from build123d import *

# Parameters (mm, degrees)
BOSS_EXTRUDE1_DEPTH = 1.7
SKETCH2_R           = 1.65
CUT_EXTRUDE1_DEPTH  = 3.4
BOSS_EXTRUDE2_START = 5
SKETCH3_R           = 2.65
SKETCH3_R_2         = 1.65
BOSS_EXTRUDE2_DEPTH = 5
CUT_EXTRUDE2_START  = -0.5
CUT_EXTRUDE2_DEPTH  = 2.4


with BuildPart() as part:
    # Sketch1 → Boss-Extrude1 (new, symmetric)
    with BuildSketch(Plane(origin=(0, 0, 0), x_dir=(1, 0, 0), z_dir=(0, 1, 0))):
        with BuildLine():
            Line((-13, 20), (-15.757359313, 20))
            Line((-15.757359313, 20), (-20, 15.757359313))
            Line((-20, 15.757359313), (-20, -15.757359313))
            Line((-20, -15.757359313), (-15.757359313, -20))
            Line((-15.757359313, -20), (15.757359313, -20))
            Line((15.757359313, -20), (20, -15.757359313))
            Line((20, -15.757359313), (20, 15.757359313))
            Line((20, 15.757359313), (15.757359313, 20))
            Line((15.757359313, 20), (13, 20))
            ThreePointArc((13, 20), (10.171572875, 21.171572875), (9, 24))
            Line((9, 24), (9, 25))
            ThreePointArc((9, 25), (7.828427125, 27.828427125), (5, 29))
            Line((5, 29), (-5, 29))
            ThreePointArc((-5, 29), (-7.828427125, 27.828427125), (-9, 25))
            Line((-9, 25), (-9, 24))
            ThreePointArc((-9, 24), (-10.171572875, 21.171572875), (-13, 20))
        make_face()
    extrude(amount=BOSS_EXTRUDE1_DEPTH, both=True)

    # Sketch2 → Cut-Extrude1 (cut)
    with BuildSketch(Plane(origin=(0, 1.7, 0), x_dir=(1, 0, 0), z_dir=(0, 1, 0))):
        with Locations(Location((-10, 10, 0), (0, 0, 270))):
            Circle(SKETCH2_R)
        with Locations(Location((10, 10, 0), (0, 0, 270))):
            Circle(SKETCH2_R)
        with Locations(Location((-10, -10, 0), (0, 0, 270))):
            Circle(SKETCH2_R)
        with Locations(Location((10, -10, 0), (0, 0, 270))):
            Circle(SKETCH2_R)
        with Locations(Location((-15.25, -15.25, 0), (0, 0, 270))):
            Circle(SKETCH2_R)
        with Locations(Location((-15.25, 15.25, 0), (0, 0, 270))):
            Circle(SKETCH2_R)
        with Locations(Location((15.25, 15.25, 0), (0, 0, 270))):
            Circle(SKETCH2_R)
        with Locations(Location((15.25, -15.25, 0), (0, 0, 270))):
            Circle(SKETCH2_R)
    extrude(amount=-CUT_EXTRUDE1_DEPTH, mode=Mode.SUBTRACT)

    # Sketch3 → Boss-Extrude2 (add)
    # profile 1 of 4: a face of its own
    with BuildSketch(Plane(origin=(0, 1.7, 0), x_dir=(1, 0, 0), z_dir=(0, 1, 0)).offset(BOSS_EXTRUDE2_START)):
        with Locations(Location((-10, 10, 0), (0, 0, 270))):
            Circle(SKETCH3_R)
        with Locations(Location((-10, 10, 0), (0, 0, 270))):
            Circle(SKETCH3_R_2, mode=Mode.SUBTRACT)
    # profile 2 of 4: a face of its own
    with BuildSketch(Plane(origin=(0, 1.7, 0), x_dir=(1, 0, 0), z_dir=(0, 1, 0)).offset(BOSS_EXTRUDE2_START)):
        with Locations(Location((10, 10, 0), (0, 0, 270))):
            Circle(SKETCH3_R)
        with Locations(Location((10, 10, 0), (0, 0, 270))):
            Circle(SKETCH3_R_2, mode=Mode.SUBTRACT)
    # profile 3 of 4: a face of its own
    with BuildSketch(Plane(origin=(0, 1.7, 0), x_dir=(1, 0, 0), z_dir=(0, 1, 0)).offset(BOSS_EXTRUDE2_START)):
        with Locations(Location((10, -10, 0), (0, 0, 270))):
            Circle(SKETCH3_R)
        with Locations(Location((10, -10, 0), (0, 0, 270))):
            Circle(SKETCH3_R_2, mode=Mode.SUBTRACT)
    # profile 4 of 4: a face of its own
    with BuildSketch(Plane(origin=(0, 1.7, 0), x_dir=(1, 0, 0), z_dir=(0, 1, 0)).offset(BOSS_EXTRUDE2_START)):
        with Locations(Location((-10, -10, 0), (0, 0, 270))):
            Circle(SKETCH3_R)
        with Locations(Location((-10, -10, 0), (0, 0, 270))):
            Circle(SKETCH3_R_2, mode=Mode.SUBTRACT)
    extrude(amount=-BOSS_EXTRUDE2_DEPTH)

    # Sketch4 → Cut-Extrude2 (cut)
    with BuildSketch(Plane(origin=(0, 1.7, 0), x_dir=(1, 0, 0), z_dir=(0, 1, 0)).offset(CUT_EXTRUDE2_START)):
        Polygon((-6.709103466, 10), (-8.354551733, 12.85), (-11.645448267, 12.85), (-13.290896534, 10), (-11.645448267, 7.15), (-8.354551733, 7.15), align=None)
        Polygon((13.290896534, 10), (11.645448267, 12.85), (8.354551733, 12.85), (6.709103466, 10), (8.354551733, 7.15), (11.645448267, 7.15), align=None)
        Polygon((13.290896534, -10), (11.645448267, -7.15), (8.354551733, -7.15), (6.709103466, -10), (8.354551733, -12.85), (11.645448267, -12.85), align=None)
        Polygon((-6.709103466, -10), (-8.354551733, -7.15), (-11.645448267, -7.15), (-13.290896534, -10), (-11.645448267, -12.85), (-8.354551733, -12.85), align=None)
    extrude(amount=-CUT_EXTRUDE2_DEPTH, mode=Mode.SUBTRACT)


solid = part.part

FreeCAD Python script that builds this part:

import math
import FreeCAD as App
import Part
import Sketcher
Q = App.Units.Quantity


def add_polygon(sketch, points):
    """Adds a closed chain of lines whose ends are joined by coincident constraints."""
    first, n = sketch.GeometryCount, len(points)
    for a, b in zip(points, points[1:] + points[:1]):
        sketch.addGeometry(Part.LineSegment(App.Vector(*a, 0), App.Vector(*b, 0)), False)
    for i in range(n):
        sketch.addConstraint(Sketcher.Constraint("Coincident", first + i, 2, first + (i + 1) % n, 1))

doc = App.newDocument("Part")
body = doc.addObject("PartDesign::Body", "Body")

# Sketch on XZ plane
sketch1 = body.newObject("Sketcher::SketchObject", "Sketch")
sketch1.AttachmentSupport = (doc.getObject("XZ_Plane"), [""])
sketch1.MapMode = "FlatFace"
sketch1.addGeometry(Part.LineSegment(App.Vector(-13, -20, 0), App.Vector(-15.8, -20, 0)), False)
sketch1.addGeometry(Part.LineSegment(App.Vector(-15.8, -20, 0), App.Vector(-20, -15.8, 0)), False)
sketch1.addGeometry(Part.LineSegment(App.Vector(-20, -15.8, 0), App.Vector(-20, 15.8, 0)), False)
sketch1.addGeometry(Part.LineSegment(App.Vector(-20, 15.8, 0), App.Vector(-15.8, 20, 0)), False)
sketch1.addGeometry(Part.LineSegment(App.Vector(-15.8, 20, 0), App.Vector(15.8, 20, 0)), False)
sketch1.addGeometry(Part.LineSegment(App.Vector(15.8, 20, 0), App.Vector(20, 15.8, 0)), False)
sketch1.addGeometry(Part.LineSegment(App.Vector(20, 15.8, 0), App.Vector(20, -15.8, 0)), False)
sketch1.addGeometry(Part.LineSegment(App.Vector(20, -15.8, 0), App.Vector(15.8, -20, 0)), False)
sketch1.addGeometry(Part.LineSegment(App.Vector(15.8, -20, 0), App.Vector(13, -20, 0)), False)
sketch1.addGeometry(Part.ArcOfCircle(Part.Circle(App.Vector(13, -24, 0), App.Vector(0, 0, 1), 4), math.radians(90), math.radians(180)), False)
sketch1.addGeometry(Part.LineSegment(App.Vector(9, -24, 0), App.Vector(9, -25, 0)), False)
sketch1.addGeometry(Part.ArcOfCircle(Part.Circle(App.Vector(5, -25, 0), App.Vector(0, 0, 1), 4), math.radians(-90), math.radians(0)), False)
sketch1.addGeometry(Part.LineSegment(App.Vector(5, -29, 0), App.Vector(-5, -29, 0)), False)
sketch1.addGeometry(Part.ArcOfCircle(Part.Circle(App.Vector(-5, -25, 0), App.Vector(0, 0, 1), 4), math.radians(180), math.radians(270)), False)
sketch1.addGeometry(Part.LineSegment(App.Vector(-9, -25, 0), App.Vector(-9, -24, 0)), False)
sketch1.addGeometry(Part.ArcOfCircle(Part.Circle(App.Vector(-13, -24, 0), App.Vector(0, 0, 1), 4), math.radians(0), math.radians(90)), False)
sketch1.addConstraint(Sketcher.Constraint("Coincident", 0, 2, 1, 1))
sketch1.addConstraint(Sketcher.Constraint("Coincident", 1, 2, 2, 1))
sketch1.addConstraint(Sketcher.Constraint("Coincident", 2, 2, 3, 1))
sketch1.addConstraint(Sketcher.Constraint("Coincident", 3, 2, 4, 1))
sketch1.addConstraint(Sketcher.Constraint("Coincident", 4, 2, 5, 1))
sketch1.addConstraint(Sketcher.Constraint("Coincident", 5, 2, 6, 1))
sketch1.addConstraint(Sketcher.Constraint("Coincident", 6, 2, 7, 1))
sketch1.addConstraint(Sketcher.Constraint("Coincident", 7, 2, 8, 1))
sketch1.addConstraint(Sketcher.Constraint("Tangent", 8, 2, 9, 1))
sketch1.addConstraint(Sketcher.Constraint("Tangent", 9, 2, 10, 1))
sketch1.addConstraint(Sketcher.Constraint("Tangent", 10, 2, 11, 2))
sketch1.addConstraint(Sketcher.Constraint("Tangent", 11, 1, 12, 1))
sketch1.addConstraint(Sketcher.Constraint("Tangent", 12, 2, 13, 2))
sketch1.addConstraint(Sketcher.Constraint("Tangent", 13, 1, 14, 1))
sketch1.addConstraint(Sketcher.Constraint("Tangent", 14, 2, 15, 1))
sketch1.addConstraint(Sketcher.Constraint("Tangent", 15, 2, 0, 1))
sketch1.addConstraint(Sketcher.Constraint("Horizontal", 0))
sketch1.addConstraint(Sketcher.Constraint("Vertical", 2))
sketch1.addConstraint(Sketcher.Constraint("Horizontal", 4))
sketch1.addConstraint(Sketcher.Constraint("Vertical", 6))
sketch1.addConstraint(Sketcher.Constraint("Horizontal", 8))
sketch1.addConstraint(Sketcher.Constraint("Vertical", 10))
sketch1.addConstraint(Sketcher.Constraint("Horizontal", 12))
sketch1.addConstraint(Sketcher.Constraint("Vertical", 14))
sketch1.addConstraint(Sketcher.Constraint("Equal", 9, 11))
sketch1.addConstraint(Sketcher.Constraint("Equal", 11, 13))
sketch1.addConstraint(Sketcher.Constraint("Equal", 13, 15))
sketch1.addConstraint(Sketcher.Constraint("Symmetric", 0, 2, 4, 2, -1, 1))
sketch1.addConstraint(Sketcher.Constraint("Symmetric", 1, 2, 5, 2, -1, 1))
sketch1.addConstraint(Sketcher.Constraint("Symmetric", 3, 2, 7, 2, -1, 1))
sketch1.addConstraint(Sketcher.Constraint("Perpendicular", 1, 3))
sketch1.addConstraint(Sketcher.Constraint("Perpendicular", 5, 7))
sketch1.addConstraint(Sketcher.Constraint("Horizontal", 2, 2, 5, 2))
sketch1.addConstraint(Sketcher.Constraint("Vertical", 0, 2, 3, 2))
sketch1.addConstraint(Sketcher.Constraint("Equal", 0, 8))
sketch1.addConstraint(Sketcher.Constraint("Equal", 4, 2))
sketch1.addConstraint(Sketcher.Constraint("Radius", 9, 4.0))
sketch1.addConstraint(Sketcher.Constraint("DistanceX", 12, 2, 12, 1, 10.0))
sketch1.addConstraint(Sketcher.Constraint("DistanceY", 10, 2, 10, 1, 1.0))
sketch1.addConstraint(Sketcher.Constraint("Distance", 1, 6.0))
sketch1.addConstraint(Sketcher.Constraint("DistanceY", 9, 3, -1, 1, 24.0))
pad1 = body.newObject("PartDesign::Pad", "Pad")
pad1.Profile = sketch1
pad1.Length = 3.4
pad1.Midplane = True

# Sketch on XZ plane
sketch2 = body.newObject("Sketcher::SketchObject", "Sketch001")
sketch2.AttachmentSupport = (doc.getObject("XZ_Plane"), [""])
sketch2.MapMode = "FlatFace"
sketch2.AttachmentOffset = App.Placement(App.Vector(0, 0, -1.7), App.Rotation())
sketch2.addGeometry(Part.Circle(App.Vector(-10, -10, 0), App.Vector(0, 0, 1), 1.6), False)
sketch2.addGeometry(Part.Circle(App.Vector(10, -10, 0), App.Vector(0, 0, 1), 1.6), False)
sketch2.addGeometry(Part.Circle(App.Vector(-10, 10, 0), App.Vector(0, 0, 1), 1.6), False)
sketch2.addGeometry(Part.Circle(App.Vector(10, 10, 0), App.Vector(0, 0, 1), 1.6), False)
sketch2.addGeometry(Part.Circle(App.Vector(-15.2, 15.2, 0), App.Vector(0, 0, 1), 1.6), False)
sketch2.addGeometry(Part.Circle(App.Vector(-15.2, -15.2, 0), App.Vector(0, 0, 1), 1.6), False)
sketch2.addGeometry(Part.Circle(App.Vector(15.2, -15.2, 0), App.Vector(0, 0, 1), 1.6), False)
sketch2.addGeometry(Part.Circle(App.Vector(15.2, 15.2, 0), App.Vector(0, 0, 1), 1.6), False)
sketch2.addConstraint(Sketcher.Constraint("Equal", 0, 1))
sketch2.addConstraint(Sketcher.Constraint("Equal", 1, 2))
sketch2.addConstraint(Sketcher.Constraint("Equal", 2, 3))
sketch2.addConstraint(Sketcher.Constraint("Equal", 3, 4))
sketch2.addConstraint(Sketcher.Constraint("Equal", 4, 5))
sketch2.addConstraint(Sketcher.Constraint("Equal", 5, 6))
sketch2.addConstraint(Sketcher.Constraint("Equal", 6, 7))
sketch2.addConstraint(Sketcher.Constraint("Symmetric", 1, 3, 2, 3, -1, 1))
sketch2.addConstraint(Sketcher.Constraint("Symmetric", 0, 3, 3, 3, -1, 1))
sketch2.addConstraint(Sketcher.Constraint("Symmetric", 4, 3, 6, 3, -1, 1))
sketch2.addConstraint(Sketcher.Constraint("Symmetric", 5, 3, 7, 3, -1, 1))
sketch2.addConstraint(Sketcher.Constraint("Symmetric", 0, 3, 1, 3, -2))
sketch2.addConstraint(Sketcher.Constraint("Symmetric", 5, 3, 6, 3, -2))
sketch2.addConstraint(Sketcher.Constraint("Diameter", 0, 3.3))
sketch2.addConstraint(Sketcher.Constraint("DistanceX", 0, 3, -1, 1, 10.0))
sketch2.addConstraint(Sketcher.Constraint("DistanceY", 0, 3, -1, 1, 10.0))
sketch2.addConstraint(Sketcher.Constraint("DistanceY", 5, 3, 4, 3, 30.5))
sketch2.addConstraint(Sketcher.Constraint("DistanceX", 5, 3, 6, 3, 30.5))
pocket1 = body.newObject("PartDesign::Pocket", "Pocket")
pocket1.Profile = sketch2
pocket1.Length = 3.4
pocket1.Reversed = True

# Sketch on XZ plane
sketch3 = body.newObject("Sketcher::SketchObject", "Sketch002")
sketch3.AttachmentSupport = (doc.getObject("XZ_Plane"), [""])
sketch3.MapMode = "FlatFace"
sketch3.AttachmentOffset = App.Placement(App.Vector(0, 0, -6.7), App.Rotation())
sketch3.addGeometry(Part.Circle(App.Vector(-10, -10, 0), App.Vector(0, 0, 1), 2.6), False)
sketch3.addGeometry(Part.Circle(App.Vector(-10, -10, 0), App.Vector(0, 0, 1), 1.6), False)
sketch3.addGeometry(Part.Circle(App.Vector(10, -10, 0), App.Vector(0, 0, 1), 2.6), False)
sketch3.addGeometry(Part.Circle(App.Vector(10, -10, 0), App.Vector(0, 0, 1), 1.6), False)
sketch3.addGeometry(Part.Circle(App.Vector(10, 10, 0), App.Vector(0, 0, 1), 2.6), False)
sketch3.addGeometry(Part.Circle(App.Vector(10, 10, 0), App.Vector(0, 0, 1), 1.6), False)
sketch3.addGeometry(Part.Circle(App.Vector(-10, 10, 0), App.Vector(0, 0, 1), 2.6), False)
sketch3.addGeometry(Part.Circle(App.Vector(-10, 10, 0), App.Vector(0, 0, 1), 1.6), False)
sketch3.addConstraint(Sketcher.Constraint("Coincident", 1, 3, 0, 3))
sketch3.addConstraint(Sketcher.Constraint("Coincident", 3, 3, 2, 3))
sketch3.addConstraint(Sketcher.Constraint("Coincident", 5, 3, 4, 3))
sketch3.addConstraint(Sketcher.Constraint("Coincident", 7, 3, 6, 3))
sketch3.addConstraint(Sketcher.Constraint("Equal", 0, 2))
sketch3.addConstraint(Sketcher.Constraint("Equal", 1, 3))
sketch3.addConstraint(Sketcher.Constraint("Equal", 2, 4))
sketch3.addConstraint(Sketcher.Constraint("Equal", 3, 5))
sketch3.addConstraint(Sketcher.Constraint("Equal", 4, 6))
sketch3.addConstraint(Sketcher.Constraint("Equal", 5, 7))
sketch3.addConstraint(Sketcher.Constraint("Symmetric", 0, 3, 4, 3, -1, 1))
sketch3.addConstraint(Sketcher.Constraint("Symmetric", 2, 3, 6, 3, -1, 1))
sketch3.addConstraint(Sketcher.Constraint("Symmetric", 0, 3, 2, 3, -2))
sketch3.addConstraint(Sketcher.Constraint("Diameter", 0, 5.3))
sketch3.addConstraint(Sketcher.Constraint("Diameter", 1, 3.3))
sketch3.addConstraint(Sketcher.Constraint("DistanceX", 0, 3, -1, 1, 10.0))
sketch3.addConstraint(Sketcher.Constraint("DistanceY", 0, 3, -1, 1, 10.0))
pad2 = body.newObject("PartDesign::Pad", "Pad001")
pad2.Profile = sketch3
pad2.Length = 5

# Sketch on XZ plane
sketch4 = body.newObject("Sketcher::SketchObject", "Sketch003")
sketch4.AttachmentSupport = (doc.getObject("XZ_Plane"), [""])
sketch4.MapMode = "FlatFace"
sketch4.AttachmentOffset = App.Placement(App.Vector(0, 0, -1.2), App.Rotation())
add_polygon(sketch4, [(-6.7, -10), (-8.4, -12.8), (-11.6, -12.8), (-13.3, -10), (-11.6, -7.2), (-8.4, -7.2)])  # lines 0-5
add_polygon(sketch4, [(13.3, -10), (11.6, -12.8), (8.4, -12.8), (6.7, -10), (8.4, -7.2), (11.6, -7.2)])  # lines 6-11
add_polygon(sketch4, [(13.3, 10), (11.6, 7.2), (8.4, 7.2), (6.7, 10), (8.4, 12.8), (11.6, 12.8)])  # lines 12-17
add_polygon(sketch4, [(-6.7, 10), (-8.4, 7.2), (-11.6, 7.2), (-13.3, 10), (-11.6, 12.8), (-8.4, 12.8)])  # lines 18-23
sketch4.addConstraint(Sketcher.Constraint("Horizontal", 1))
sketch4.addConstraint(Sketcher.Constraint("Horizontal", 4))
sketch4.addConstraint(Sketcher.Constraint("Horizontal", 7))
sketch4.addConstraint(Sketcher.Constraint("Horizontal", 10))
sketch4.addConstraint(Sketcher.Constraint("Horizontal", 13))
sketch4.addConstraint(Sketcher.Constraint("Horizontal", 16))
sketch4.addConstraint(Sketcher.Constraint("Horizontal", 19))
sketch4.addConstraint(Sketcher.Constraint("Horizontal", 22))
sketch4.addConstraint(Sketcher.Constraint("Symmetric", 3, 2, 12, 2, -1, 1))
sketch4.addConstraint(Sketcher.Constraint("Symmetric", 5, 2, 14, 2, -1, 1))
sketch4.addConstraint(Sketcher.Constraint("Symmetric", 0, 2, 15, 2, -1, 1))
sketch4.addConstraint(Sketcher.Constraint("Symmetric", 2, 2, 17, 2, -1, 1))
sketch4.addConstraint(Sketcher.Constraint("Symmetric", 9, 2, 18, 2, -1, 1))
sketch4.addConstraint(Sketcher.Constraint("Symmetric", 11, 2, 20, 2, -1, 1))
sketch4.addConstraint(Sketcher.Constraint("Symmetric", 6, 2, 21, 2, -1, 1))
sketch4.addConstraint(Sketcher.Constraint("Symmetric", 8, 2, 23, 2, -1, 1))
sketch4.addConstraint(Sketcher.Constraint("Symmetric", 1, 2, 6, 2, -2))
sketch4.addConstraint(Sketcher.Constraint("Symmetric", 5, 2, 8, 2, -2))
sketch4.addConstraint(Sketcher.Constraint("Symmetric", 4, 2, 9, 2, -2))
sketch4.addConstraint(Sketcher.Constraint("Symmetric", 2, 2, 11, 2, -2))
sketch4.addConstraint(Sketcher.Constraint("Parallel", 0, 3))
sketch4.addConstraint(Sketcher.Constraint("Parallel", 2, 5))
sketch4.addConstraint(Sketcher.Constraint("Parallel", 3, 6))
sketch4.addConstraint(Sketcher.Constraint("Parallel", 5, 8))
sketch4.addConstraint(Sketcher.Constraint("Parallel", 8, 11))
sketch4.addConstraint(Sketcher.Constraint("Parallel", 11, 14))
sketch4.addConstraint(Sketcher.Constraint("Parallel", 14, 17))
sketch4.addConstraint(Sketcher.Constraint("Parallel", 17, 20))
sketch4.addConstraint(Sketcher.Constraint("Parallel", 20, 23))
sketch4.addConstraint(Sketcher.Constraint("Horizontal", 2, 2, 5, 2))
sketch4.addConstraint(Sketcher.Constraint("Vertical", 1, 2, 3, 2))
sketch4.addConstraint(Sketcher.Constraint("Angle", 0, Q("-120 deg")))
sketch4.addConstraint(Sketcher.Constraint("DistanceY", 2, 2, -1, 1, 10.0))
sketch4.addConstraint(Sketcher.Constraint("DistanceX", 0, 2, 6, 2, 20.0))
sketch4.addConstraint(Sketcher.Constraint("DistanceY", 1, 2, 3, 2, 5.7))
sketch4.addConstraint(Sketcher.Constraint("DistanceX", 1, 2, 1, 1, 3.290897))
pocket2 = body.newObject("PartDesign::Pocket", "Pocket001")
pocket2.Profile = sketch4
pocket2.Length = 2.4
pocket2.Reversed = True

doc.recompute()
